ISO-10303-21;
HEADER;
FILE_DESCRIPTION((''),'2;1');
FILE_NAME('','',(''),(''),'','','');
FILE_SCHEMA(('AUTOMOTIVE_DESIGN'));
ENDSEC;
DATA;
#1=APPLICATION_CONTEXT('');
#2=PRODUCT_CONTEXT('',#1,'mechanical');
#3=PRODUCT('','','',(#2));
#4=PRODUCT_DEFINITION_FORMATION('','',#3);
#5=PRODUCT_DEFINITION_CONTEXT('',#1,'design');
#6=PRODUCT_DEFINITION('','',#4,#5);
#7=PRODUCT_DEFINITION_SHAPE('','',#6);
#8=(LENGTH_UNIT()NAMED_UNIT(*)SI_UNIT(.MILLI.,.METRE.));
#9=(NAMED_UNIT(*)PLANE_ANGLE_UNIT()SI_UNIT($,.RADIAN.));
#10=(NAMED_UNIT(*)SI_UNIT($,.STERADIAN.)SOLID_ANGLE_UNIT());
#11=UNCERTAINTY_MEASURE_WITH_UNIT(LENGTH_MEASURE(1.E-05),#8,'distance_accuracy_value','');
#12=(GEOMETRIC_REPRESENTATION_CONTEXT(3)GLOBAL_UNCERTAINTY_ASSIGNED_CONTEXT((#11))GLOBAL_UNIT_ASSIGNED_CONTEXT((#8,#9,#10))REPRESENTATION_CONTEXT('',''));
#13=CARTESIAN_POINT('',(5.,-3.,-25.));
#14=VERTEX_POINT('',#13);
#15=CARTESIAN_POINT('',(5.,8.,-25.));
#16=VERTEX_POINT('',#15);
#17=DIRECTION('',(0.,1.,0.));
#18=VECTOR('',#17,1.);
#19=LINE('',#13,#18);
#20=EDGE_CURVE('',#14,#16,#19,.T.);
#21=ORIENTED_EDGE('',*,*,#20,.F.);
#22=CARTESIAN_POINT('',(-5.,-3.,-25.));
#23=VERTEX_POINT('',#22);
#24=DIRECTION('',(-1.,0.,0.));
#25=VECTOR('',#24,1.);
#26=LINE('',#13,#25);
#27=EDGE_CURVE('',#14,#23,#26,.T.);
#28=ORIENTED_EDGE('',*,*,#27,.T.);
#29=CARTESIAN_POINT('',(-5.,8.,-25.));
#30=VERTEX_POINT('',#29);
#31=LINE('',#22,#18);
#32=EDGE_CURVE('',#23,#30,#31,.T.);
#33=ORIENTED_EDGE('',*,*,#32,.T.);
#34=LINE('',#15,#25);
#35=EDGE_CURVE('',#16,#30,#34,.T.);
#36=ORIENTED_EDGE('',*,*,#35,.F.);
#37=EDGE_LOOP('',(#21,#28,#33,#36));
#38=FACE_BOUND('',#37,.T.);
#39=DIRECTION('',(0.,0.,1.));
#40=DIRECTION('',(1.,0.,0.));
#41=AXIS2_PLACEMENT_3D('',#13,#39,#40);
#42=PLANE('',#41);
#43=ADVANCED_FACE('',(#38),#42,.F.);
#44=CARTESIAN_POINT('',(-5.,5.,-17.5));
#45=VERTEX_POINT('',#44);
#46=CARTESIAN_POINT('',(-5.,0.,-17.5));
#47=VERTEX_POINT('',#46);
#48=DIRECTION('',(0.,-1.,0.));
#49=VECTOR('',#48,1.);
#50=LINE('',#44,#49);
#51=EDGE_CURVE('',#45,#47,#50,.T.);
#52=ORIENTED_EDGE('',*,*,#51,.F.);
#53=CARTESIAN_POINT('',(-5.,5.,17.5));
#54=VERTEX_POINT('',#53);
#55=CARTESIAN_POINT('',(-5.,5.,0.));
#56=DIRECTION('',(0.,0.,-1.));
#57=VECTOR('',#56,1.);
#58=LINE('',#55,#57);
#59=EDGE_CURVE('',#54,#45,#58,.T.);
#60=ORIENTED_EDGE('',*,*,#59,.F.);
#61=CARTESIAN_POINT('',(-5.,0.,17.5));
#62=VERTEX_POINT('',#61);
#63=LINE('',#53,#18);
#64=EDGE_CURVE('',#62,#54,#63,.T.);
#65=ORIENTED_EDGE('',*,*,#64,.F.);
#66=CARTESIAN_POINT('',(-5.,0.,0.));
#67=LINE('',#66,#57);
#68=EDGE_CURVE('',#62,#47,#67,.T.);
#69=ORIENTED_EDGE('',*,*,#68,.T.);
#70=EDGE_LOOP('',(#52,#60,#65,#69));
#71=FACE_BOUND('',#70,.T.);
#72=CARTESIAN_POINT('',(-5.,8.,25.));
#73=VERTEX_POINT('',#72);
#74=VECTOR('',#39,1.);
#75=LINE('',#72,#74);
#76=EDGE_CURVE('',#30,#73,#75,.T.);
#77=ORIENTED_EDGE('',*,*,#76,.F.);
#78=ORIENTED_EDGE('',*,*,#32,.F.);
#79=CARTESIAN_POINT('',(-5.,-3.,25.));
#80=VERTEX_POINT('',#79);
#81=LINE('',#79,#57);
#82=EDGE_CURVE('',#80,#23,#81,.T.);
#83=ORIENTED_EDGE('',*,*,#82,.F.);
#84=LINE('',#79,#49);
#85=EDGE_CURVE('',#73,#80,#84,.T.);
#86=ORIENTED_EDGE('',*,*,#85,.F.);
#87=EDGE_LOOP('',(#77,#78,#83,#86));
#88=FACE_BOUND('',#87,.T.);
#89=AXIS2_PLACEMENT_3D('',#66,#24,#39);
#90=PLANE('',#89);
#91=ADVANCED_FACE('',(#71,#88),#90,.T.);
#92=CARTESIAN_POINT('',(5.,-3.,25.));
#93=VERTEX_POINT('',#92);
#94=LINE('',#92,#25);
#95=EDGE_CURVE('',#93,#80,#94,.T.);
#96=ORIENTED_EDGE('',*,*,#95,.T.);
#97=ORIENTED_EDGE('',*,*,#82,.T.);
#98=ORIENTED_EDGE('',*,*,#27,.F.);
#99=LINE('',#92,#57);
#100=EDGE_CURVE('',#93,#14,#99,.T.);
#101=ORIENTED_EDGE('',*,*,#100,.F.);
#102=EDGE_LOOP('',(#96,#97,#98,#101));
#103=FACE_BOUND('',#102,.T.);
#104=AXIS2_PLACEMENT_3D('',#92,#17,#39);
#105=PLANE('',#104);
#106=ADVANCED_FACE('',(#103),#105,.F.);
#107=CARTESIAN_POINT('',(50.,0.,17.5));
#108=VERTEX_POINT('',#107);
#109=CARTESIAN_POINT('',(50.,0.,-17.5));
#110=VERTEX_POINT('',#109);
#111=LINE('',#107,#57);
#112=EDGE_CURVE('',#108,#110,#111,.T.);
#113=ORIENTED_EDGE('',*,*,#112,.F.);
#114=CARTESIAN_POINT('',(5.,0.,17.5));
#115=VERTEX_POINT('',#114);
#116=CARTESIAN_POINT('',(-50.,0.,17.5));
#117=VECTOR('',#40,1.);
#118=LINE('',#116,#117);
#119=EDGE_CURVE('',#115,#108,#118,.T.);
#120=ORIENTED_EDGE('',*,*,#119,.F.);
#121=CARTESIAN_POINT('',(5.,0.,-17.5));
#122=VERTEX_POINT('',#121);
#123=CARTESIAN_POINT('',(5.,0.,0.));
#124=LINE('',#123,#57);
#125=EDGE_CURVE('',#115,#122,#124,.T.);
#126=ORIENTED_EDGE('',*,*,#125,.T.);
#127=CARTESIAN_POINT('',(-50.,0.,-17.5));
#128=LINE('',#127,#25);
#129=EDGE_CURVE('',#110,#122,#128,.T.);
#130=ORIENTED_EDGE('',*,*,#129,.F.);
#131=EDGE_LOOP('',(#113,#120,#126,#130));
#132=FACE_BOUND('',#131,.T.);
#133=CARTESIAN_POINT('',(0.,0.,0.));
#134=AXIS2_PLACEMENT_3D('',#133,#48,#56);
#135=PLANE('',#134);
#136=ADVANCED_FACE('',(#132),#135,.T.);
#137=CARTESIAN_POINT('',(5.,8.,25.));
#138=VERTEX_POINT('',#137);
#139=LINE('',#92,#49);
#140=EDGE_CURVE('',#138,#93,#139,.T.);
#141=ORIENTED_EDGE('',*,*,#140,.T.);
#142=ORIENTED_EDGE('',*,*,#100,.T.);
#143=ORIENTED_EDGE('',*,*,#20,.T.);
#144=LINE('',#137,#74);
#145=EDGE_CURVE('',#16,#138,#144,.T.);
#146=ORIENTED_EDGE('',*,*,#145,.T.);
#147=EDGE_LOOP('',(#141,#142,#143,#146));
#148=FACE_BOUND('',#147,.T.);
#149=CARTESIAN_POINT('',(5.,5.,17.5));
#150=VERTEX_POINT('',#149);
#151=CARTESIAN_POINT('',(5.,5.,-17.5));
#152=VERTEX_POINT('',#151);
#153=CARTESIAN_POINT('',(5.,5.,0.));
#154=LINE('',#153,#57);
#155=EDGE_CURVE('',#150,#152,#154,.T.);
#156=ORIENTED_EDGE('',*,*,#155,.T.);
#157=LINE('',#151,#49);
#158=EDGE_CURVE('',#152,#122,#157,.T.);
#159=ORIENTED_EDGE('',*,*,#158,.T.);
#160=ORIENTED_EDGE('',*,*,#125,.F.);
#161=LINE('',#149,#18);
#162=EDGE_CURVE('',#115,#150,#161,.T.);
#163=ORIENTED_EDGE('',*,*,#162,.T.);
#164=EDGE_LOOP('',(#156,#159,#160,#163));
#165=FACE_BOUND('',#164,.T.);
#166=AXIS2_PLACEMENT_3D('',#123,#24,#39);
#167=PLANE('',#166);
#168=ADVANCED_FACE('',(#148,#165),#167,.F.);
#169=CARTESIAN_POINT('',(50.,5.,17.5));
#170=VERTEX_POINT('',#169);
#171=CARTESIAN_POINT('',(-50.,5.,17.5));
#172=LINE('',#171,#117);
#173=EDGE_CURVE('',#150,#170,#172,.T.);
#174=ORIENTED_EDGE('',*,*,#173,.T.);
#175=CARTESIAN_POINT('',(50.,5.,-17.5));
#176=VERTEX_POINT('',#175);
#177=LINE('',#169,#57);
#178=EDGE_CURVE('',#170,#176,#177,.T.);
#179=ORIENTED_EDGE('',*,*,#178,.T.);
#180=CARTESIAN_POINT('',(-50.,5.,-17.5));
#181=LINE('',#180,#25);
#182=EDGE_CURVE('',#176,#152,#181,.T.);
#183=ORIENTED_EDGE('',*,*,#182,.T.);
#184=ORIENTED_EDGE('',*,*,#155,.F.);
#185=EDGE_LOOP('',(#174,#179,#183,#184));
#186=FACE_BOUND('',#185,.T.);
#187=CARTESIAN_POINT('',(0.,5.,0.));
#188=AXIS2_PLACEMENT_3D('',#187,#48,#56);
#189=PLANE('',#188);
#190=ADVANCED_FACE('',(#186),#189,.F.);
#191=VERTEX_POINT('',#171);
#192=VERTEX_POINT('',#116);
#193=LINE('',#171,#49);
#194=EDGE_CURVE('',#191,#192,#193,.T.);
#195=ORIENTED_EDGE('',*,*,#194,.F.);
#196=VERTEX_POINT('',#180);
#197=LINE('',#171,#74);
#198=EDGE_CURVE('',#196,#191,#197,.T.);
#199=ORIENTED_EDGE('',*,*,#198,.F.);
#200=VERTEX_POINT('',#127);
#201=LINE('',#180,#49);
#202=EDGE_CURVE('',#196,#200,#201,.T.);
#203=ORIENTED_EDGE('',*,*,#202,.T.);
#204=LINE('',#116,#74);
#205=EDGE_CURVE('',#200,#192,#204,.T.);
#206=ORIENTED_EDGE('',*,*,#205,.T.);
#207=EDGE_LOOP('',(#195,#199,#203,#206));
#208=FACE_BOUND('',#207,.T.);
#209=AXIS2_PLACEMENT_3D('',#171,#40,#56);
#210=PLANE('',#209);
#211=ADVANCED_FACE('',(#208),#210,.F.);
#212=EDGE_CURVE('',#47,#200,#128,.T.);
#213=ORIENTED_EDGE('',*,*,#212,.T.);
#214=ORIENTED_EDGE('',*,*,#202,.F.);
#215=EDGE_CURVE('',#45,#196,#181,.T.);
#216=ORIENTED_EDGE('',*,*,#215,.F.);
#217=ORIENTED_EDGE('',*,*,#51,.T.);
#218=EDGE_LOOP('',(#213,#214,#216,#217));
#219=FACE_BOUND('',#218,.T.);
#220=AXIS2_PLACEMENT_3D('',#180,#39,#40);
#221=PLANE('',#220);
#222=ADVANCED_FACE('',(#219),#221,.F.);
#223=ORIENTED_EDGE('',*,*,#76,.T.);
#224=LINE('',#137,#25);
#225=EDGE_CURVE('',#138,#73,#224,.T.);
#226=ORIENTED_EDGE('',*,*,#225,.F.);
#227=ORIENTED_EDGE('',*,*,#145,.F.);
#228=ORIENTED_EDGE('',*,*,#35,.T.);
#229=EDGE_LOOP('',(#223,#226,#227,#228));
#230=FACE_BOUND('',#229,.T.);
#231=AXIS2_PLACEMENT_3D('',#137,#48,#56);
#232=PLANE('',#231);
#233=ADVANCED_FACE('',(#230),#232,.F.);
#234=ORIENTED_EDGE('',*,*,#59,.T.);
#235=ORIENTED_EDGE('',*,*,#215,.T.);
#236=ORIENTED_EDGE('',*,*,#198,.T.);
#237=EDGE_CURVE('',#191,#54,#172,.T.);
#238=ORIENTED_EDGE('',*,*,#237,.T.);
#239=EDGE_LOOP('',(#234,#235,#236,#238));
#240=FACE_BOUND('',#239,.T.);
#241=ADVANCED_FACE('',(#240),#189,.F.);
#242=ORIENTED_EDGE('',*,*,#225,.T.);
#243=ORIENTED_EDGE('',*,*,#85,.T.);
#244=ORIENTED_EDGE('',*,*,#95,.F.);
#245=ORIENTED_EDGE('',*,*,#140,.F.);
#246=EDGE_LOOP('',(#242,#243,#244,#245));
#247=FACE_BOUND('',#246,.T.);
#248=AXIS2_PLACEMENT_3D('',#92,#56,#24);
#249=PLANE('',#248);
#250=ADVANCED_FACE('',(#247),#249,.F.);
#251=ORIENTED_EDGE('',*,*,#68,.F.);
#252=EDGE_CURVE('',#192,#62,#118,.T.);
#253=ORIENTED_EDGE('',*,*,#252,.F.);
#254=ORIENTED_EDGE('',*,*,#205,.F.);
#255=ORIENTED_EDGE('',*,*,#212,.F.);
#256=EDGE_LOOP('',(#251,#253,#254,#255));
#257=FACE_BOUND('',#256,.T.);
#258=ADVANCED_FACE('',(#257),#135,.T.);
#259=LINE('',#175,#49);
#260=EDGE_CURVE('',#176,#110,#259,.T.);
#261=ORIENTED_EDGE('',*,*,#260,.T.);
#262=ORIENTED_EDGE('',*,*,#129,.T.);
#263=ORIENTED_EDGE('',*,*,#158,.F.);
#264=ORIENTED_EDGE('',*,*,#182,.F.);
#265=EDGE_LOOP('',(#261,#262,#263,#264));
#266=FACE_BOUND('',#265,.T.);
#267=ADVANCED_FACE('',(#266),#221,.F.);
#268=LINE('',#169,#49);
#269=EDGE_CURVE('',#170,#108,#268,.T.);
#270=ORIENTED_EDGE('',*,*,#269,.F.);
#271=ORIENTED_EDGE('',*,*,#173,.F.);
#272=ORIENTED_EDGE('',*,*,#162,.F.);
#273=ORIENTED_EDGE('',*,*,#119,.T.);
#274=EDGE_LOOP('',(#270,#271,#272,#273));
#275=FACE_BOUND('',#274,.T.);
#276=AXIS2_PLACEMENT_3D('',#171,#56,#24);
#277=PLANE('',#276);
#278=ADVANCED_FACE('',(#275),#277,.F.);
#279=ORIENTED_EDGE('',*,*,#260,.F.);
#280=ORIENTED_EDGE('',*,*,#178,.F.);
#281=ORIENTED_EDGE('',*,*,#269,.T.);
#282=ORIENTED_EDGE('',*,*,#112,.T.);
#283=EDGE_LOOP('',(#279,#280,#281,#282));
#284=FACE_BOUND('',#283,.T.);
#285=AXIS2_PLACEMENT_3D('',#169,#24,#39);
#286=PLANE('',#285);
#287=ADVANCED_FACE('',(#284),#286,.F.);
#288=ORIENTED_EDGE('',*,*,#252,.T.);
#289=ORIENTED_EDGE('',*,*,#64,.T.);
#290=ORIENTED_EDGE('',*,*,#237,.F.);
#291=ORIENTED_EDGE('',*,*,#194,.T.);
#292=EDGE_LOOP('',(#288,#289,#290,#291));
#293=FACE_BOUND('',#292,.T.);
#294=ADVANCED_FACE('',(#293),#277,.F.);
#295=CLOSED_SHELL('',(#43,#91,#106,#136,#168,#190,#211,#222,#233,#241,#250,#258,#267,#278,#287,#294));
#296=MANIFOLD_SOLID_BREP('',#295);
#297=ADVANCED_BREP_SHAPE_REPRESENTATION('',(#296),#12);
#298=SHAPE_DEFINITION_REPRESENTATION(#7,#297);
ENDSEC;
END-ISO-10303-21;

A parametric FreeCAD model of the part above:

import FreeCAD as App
import Part
import Sketcher

V = App.Vector


def add_polygon(sketch, points):
    """Adds a closed chain of lines whose ends are joined by coincident constraints."""
    first, n = sketch.GeometryCount, len(points)
    for a, b in zip(points, points[1:] + points[:1]):
        sketch.addGeometry(Part.LineSegment(App.Vector(*a, 0), App.Vector(*b, 0)), False)
    for i in range(n):
        sketch.addConstraint(Sketcher.Constraint("Coincident", first + i, 2, first + (i + 1) % n, 1))

doc = App.newDocument("Part")
body = doc.addObject("PartDesign::Body", "Body")

# Sketch on XZ plane
sketch1 = doc.addObject("Sketcher::SketchObject", "Sketch")
body.addObject(sketch1)
sketch1.AttachmentSupport = (doc.XZ_Plane, [""])
sketch1.MapMode = "FlatFace"
add_polygon(sketch1, [(-50, -18), (-50, 18), (50, 18), (50, -18)])  # lines 0-3
sketch1.addConstraint([
    Sketcher.Constraint("Vertical", 0),
    Sketcher.Constraint("Horizontal", 1),
    Sketcher.Constraint("Vertical", 2),
    Sketcher.Constraint("Horizontal", 3),
    Sketcher.Constraint("Symmetric", 0, 2, 2, 2, -1, 1),
    Sketcher.Constraint("DistanceX", 1, 1, 1, 2, 100.0),
    Sketcher.Constraint("DistanceY", 0, 1, 0, 2, 35.0),
])
pad1 = doc.addObject("PartDesign::Pad", "Pad")
body.addObject(pad1)
pad1.Profile = sketch1
pad1.Length = 5
pad1.Reversed = True

# Sketch on YZ plane
sketch2 = doc.addObject("Sketcher::SketchObject", "Sketch001")
body.addObject(sketch2)
sketch2.AttachmentSupport = (doc.YZ_Plane, [""])
sketch2.MapMode = "FlatFace"
add_polygon(sketch2, [(8, 25), (-3, 25), (-3, -25), (8, -25)])  # lines 0-3
sketch2.addConstraint([
    Sketcher.Constraint("Horizontal", 0),
    Sketcher.Constraint("Vertical", 1),
    Sketcher.Constraint("Horizontal", 2),
    Sketcher.Constraint("Vertical", 3),
    Sketcher.Constraint("DistanceX", 0, 2, 0, 1, 11.0),
    Sketcher.Constraint("DistanceY", 1, 2, 1, 1, 50.0),
    Sketcher.Constraint("DistanceX", 0, 2, -1, 1, 3.0),
    Sketcher.Constraint("DistanceY", -1, 1, 0, 2, 25.0),
])
pad2 = doc.addObject("PartDesign::Pad", "Pad001")
body.addObject(pad2)
pad2.Profile = sketch2
pad2.Length = 10
pad2.Midplane = True

doc.recompute()
